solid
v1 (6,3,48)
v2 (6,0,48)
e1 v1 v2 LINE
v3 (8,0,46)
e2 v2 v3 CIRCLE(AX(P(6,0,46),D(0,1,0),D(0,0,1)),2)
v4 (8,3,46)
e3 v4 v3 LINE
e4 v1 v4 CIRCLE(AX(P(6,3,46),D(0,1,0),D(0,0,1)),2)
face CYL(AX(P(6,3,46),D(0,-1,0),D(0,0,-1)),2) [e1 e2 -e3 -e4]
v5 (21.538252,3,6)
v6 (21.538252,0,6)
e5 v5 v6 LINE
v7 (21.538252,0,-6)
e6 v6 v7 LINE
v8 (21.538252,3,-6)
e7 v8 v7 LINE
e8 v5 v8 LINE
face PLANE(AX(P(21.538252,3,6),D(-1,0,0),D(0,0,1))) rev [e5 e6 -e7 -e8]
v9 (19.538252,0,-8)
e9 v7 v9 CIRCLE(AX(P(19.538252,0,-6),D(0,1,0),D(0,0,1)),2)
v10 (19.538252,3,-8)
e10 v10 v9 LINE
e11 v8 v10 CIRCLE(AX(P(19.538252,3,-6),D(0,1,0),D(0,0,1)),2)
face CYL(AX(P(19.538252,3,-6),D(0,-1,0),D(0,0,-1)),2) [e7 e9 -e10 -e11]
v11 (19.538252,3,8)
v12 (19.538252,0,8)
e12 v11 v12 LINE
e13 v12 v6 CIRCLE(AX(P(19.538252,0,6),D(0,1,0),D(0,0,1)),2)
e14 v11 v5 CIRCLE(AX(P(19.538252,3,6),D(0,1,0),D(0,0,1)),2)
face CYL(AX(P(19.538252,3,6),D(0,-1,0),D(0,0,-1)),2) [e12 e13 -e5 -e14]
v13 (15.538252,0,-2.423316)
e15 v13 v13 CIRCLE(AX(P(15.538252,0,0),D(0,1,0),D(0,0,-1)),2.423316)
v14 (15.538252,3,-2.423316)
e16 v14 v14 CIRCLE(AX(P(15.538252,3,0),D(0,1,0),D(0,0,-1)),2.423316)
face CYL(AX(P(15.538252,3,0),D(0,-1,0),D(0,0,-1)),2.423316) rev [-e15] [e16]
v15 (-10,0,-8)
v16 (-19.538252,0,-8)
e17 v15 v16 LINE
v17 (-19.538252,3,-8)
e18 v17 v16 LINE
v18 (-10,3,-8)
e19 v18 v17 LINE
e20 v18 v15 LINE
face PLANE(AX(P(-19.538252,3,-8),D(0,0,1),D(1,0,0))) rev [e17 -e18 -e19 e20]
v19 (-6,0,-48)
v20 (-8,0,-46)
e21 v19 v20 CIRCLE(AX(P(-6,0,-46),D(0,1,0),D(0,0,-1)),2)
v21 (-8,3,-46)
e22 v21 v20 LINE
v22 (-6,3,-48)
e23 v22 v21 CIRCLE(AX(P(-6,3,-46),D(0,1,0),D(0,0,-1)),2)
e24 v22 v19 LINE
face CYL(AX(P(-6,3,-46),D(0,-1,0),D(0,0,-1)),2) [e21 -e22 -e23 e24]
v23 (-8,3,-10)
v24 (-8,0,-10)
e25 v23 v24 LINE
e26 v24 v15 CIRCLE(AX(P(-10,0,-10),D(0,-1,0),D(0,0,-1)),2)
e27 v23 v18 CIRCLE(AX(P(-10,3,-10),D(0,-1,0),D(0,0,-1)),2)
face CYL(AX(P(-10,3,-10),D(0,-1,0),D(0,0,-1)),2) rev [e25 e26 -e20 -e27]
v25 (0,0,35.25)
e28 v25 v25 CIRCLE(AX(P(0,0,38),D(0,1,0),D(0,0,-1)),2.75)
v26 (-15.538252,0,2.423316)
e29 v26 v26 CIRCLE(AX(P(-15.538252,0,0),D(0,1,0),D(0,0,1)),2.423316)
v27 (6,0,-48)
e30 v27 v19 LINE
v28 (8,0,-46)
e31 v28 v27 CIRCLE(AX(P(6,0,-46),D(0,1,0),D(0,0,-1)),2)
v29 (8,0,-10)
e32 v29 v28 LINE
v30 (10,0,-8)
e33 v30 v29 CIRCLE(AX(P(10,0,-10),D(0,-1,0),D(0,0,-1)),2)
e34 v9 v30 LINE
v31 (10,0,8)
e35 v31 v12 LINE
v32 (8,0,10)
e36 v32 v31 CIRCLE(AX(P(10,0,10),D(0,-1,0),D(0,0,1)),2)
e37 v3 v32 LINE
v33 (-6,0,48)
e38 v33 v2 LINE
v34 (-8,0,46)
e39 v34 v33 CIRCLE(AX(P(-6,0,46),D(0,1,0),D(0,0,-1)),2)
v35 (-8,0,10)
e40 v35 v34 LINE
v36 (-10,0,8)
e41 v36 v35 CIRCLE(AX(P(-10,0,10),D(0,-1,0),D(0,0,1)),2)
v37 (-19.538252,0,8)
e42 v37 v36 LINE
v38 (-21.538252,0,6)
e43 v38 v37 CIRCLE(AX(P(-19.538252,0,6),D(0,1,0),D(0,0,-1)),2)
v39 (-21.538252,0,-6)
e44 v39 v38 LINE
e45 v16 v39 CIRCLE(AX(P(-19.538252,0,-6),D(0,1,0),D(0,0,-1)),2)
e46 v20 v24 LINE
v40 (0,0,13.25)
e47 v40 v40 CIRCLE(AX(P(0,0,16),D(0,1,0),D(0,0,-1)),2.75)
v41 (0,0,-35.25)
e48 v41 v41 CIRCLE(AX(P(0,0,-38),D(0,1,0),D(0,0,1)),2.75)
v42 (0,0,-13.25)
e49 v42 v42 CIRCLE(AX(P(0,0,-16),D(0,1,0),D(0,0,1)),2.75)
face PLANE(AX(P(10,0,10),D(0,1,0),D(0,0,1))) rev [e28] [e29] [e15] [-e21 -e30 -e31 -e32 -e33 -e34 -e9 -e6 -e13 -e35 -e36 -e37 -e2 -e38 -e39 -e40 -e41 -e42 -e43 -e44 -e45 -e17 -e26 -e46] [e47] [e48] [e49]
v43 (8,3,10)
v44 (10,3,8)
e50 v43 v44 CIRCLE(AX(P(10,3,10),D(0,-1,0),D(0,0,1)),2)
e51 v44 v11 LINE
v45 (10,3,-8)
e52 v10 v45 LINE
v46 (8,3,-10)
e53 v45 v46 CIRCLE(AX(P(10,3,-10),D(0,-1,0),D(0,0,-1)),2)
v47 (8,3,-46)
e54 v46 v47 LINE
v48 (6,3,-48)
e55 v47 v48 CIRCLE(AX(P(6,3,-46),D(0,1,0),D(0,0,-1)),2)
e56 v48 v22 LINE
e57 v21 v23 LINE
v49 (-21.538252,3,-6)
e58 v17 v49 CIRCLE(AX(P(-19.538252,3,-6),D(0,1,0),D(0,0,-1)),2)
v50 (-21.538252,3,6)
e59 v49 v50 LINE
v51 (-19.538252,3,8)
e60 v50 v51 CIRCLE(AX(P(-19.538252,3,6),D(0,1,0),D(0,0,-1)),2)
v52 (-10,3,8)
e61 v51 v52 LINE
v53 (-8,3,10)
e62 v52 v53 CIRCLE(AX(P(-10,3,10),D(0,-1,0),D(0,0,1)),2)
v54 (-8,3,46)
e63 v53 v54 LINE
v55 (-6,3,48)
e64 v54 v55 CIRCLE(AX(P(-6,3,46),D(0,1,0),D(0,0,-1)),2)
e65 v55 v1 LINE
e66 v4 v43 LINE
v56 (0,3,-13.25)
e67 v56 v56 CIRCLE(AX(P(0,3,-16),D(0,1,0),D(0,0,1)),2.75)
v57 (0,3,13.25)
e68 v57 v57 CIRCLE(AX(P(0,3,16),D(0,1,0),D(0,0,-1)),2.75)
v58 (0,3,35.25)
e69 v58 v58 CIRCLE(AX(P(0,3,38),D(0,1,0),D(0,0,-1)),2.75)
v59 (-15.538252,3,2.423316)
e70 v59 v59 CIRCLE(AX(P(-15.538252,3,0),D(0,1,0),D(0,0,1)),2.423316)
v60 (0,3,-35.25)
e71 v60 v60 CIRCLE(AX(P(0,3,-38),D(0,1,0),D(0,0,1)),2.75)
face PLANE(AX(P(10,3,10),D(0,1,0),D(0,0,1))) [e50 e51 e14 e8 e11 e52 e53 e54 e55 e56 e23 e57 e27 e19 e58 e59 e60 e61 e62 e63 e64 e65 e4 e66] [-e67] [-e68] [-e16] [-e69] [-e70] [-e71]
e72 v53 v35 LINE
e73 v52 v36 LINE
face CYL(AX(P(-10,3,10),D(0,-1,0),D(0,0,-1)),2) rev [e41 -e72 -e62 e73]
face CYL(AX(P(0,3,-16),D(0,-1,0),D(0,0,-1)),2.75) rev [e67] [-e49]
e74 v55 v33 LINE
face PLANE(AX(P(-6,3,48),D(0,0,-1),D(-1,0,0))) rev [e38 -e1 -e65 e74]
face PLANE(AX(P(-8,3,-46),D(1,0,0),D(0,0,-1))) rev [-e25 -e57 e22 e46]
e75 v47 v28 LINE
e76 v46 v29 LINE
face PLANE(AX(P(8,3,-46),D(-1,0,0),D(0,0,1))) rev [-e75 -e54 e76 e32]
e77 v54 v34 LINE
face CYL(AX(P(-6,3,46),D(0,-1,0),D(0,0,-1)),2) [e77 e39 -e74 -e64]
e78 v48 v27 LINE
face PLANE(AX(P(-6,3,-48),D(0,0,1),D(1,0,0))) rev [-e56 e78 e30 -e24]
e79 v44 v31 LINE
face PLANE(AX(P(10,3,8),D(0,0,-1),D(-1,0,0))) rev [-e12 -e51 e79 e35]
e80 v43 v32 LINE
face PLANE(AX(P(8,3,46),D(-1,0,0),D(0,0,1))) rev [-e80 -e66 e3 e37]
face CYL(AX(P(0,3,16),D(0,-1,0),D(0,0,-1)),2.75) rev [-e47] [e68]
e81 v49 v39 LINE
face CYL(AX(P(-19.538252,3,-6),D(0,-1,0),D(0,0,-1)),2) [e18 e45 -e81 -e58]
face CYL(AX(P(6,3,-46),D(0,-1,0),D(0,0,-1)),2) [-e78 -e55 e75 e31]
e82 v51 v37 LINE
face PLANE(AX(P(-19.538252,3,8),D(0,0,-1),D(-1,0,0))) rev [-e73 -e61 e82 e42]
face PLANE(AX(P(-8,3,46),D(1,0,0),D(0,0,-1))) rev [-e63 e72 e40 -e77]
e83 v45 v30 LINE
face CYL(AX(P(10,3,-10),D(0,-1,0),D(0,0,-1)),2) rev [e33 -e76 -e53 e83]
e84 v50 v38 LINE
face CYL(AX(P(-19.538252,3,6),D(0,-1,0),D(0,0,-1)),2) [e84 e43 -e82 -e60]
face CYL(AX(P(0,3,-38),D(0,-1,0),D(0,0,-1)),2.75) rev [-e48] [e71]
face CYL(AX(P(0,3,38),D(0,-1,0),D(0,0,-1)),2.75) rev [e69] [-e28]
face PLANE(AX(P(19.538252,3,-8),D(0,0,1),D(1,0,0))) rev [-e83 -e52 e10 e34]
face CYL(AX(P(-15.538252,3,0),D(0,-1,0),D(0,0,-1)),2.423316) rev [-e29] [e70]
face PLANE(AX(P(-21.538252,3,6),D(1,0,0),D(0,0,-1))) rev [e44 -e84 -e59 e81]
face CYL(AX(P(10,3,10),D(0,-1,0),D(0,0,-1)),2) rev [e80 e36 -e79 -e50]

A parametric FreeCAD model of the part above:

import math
import FreeCAD as App
import Part
import Sketcher
from FreeCAD import Vector

doc = App.newDocument("Part")
body = doc.addObject("PartDesign::Body", "Body")

sketch1 = body.newObject("Sketcher::SketchObject", "Sketch")
sketch1.AttachmentSupport = (doc.getObject("XZ_Plane"), [""])
sketch1.MapMode = "FlatFace"
sketch1.addGeometry(Part.LineSegment(Vector(6, -48, 0), Vector(-6, -48, 0)), False)
sketch1.addGeometry(Part.ArcOfCircle(Part.Circle(Vector(-6, -46, 0), Vector(0, 0, 1), 2), math.radians(-180), math.radians(-90)), False)
sketch1.addGeometry(Part.LineSegment(Vector(-8, -46, 0), Vector(-8, -10, 0)), False)
sketch1.addGeometry(Part.ArcOfCircle(Part.Circle(Vector(-10, -10, 0), Vector(0, 0, 1), 2), math.radians(0), math.radians(90)), False)
sketch1.addGeometry(Part.LineSegment(Vector(-10, -8, 0), Vector(-19.538252, -8, 0)), False)
sketch1.addGeometry(Part.ArcOfCircle(Part.Circle(Vector(-19.538252, -6, 0), Vector(0, 0, 1), 2), math.radians(-180), math.radians(-90)), False)
sketch1.addGeometry(Part.LineSegment(Vector(-21.538252, -6, 0), Vector(-21.538252, 6, 0)), False)
sketch1.addGeometry(Part.ArcOfCircle(Part.Circle(Vector(-19.538252, 6, 0), Vector(0, 0, 1), 2), math.radians(90), math.radians(180)), False)
sketch1.addGeometry(Part.LineSegment(Vector(-19.538252, 8, 0), Vector(-10, 8, 0)), False)
sketch1.addGeometry(Part.ArcOfCircle(Part.Circle(Vector(-10, 10, 0), Vector(0, 0, 1), 2), math.radians(-90), math.radians(0)), False)
sketch1.addGeometry(Part.LineSegment(Vector(-8, 10, 0), Vector(-8, 46, 0)), False)
sketch1.addGeometry(Part.ArcOfCircle(Part.Circle(Vector(-6, 46, 0), Vector(0, 0, 1), 2), math.radians(90), math.radians(180)), False)
sketch1.addGeometry(Part.LineSegment(Vector(-6, 48, 0), Vector(6, 48, 0)), False)
sketch1.addGeometry(Part.ArcOfCircle(Part.Circle(Vector(6, 46, 0), Vector(0, 0, 1), 2), math.radians(0), math.radians(90)), False)
sketch1.addGeometry(Part.LineSegment(Vector(8, 46, 0), Vector(8, 10, 0)), False)
sketch1.addGeometry(Part.ArcOfCircle(Part.Circle(Vector(10, 10, 0), Vector(0, 0, 1), 2), math.radians(-180), math.radians(-90)), False)
sketch1.addGeometry(Part.LineSegment(Vector(10, 8, 0), Vector(19.538252, 8, 0)), False)
sketch1.addGeometry(Part.ArcOfCircle(Part.Circle(Vector(19.538252, 6, 0), Vector(0, 0, 1), 2), math.radians(0), math.radians(90)), False)
sketch1.addGeometry(Part.LineSegment(Vector(21.538252, 6, 0), Vector(21.538252, -6, 0)), False)
sketch1.addGeometry(Part.ArcOfCircle(Part.Circle(Vector(19.538252, -6, 0), Vector(0, 0, 1), 2), math.radians(-90), math.radians(0)), False)
sketch1.addGeometry(Part.LineSegment(Vector(19.538252, -8, 0), Vector(10, -8, 0)), False)
sketch1.addGeometry(Part.ArcOfCircle(Part.Circle(Vector(10, -10, 0), Vector(0, 0, 1), 2), math.radians(90), math.radians(180)), False)
sketch1.addGeometry(Part.LineSegment(Vector(8, -10, 0), Vector(8, -46, 0)), False)
sketch1.addGeometry(Part.ArcOfCircle(Part.Circle(Vector(6, -46, 0), Vector(0, 0, 1), 2), math.radians(-90), math.radians(0)), False)
sketch1.addGeometry(Part.Circle(Vector(0, 38, 0), Vector(0, 0, 1), 2.75), False)
sketch1.addGeometry(Part.Circle(Vector(0, 16, 0), Vector(0, 0, 1), 2.75), False)
sketch1.addGeometry(Part.Circle(Vector(15.538252, 0, 0), Vector(0, 0, 1), 2.423316), False)
sketch1.addGeometry(Part.Circle(Vector(0, -16, 0), Vector(0, 0, 1), 2.75), False)
sketch1.addGeometry(Part.Circle(Vector(-15.538252, 0, 0), Vector(0, 0, 1), 2.423316), False)
sketch1.addGeometry(Part.Circle(Vector(0, -38, 0), Vector(0, 0, 1), 2.75), False)
sketch1.addConstraint(Sketcher.Constraint("Tangent", 0, 2, 1, 2))
sketch1.addConstraint(Sketcher.Constraint("Tangent", 1, 1, 2, 1))
sketch1.addConstraint(Sketcher.Constraint("Tangent", 2, 2, 3, 1))
sketch1.addConstraint(Sketcher.Constraint("Tangent", 3, 2, 4, 1))
sketch1.addConstraint(Sketcher.Constraint("Tangent", 4, 2, 5, 2))
sketch1.addConstraint(Sketcher.Constraint("Tangent", 5, 1, 6, 1))
sketch1.addConstraint(Sketcher.Constraint("Tangent", 6, 2, 7, 2))
sketch1.addConstraint(Sketcher.Constraint("Tangent", 7, 1, 8, 1))
sketch1.addConstraint(Sketcher.Constraint("Tangent", 8, 2, 9, 1))
sketch1.addConstraint(Sketcher.Constraint("Tangent", 9, 2, 10, 1))
sketch1.addConstraint(Sketcher.Constraint("Tangent", 10, 2, 11, 2))
sketch1.addConstraint(Sketcher.Constraint("Tangent", 11, 1, 12, 1))
sketch1.addConstraint(Sketcher.Constraint("Tangent", 12, 2, 13, 2))
sketch1.addConstraint(Sketcher.Constraint("Tangent", 13, 1, 14, 1))
sketch1.addConstraint(Sketcher.Constraint("Tangent", 14, 2, 15, 1))
sketch1.addConstraint(Sketcher.Constraint("Tangent", 15, 2, 16, 1))
sketch1.addConstraint(Sketcher.Constraint("Tangent", 16, 2, 17, 2))
sketch1.addConstraint(Sketcher.Constraint("Tangent", 17, 1, 18, 1))
sketch1.addConstraint(Sketcher.Constraint("Tangent", 18, 2, 19, 2))
sketch1.addConstraint(Sketcher.Constraint("Tangent", 19, 1, 20, 1))
sketch1.addConstraint(Sketcher.Constraint("Tangent", 20, 2, 21, 1))
sketch1.addConstraint(Sketcher.Constraint("Tangent", 21, 2, 22, 1))
sketch1.addConstraint(Sketcher.Constraint("Tangent", 22, 2, 23, 2))
sketch1.addConstraint(Sketcher.Constraint("Tangent", 23, 1, 0, 1))
sketch1.addConstraint(Sketcher.Constraint("Horizontal", 0))
sketch1.addConstraint(Sketcher.Constraint("Vertical", 2))
sketch1.addConstraint(Sketcher.Constraint("Horizontal", 4))
sketch1.addConstraint(Sketcher.Constraint("Vertical", 6))
sketch1.addConstraint(Sketcher.Constraint("Horizontal", 8))
sketch1.addConstraint(Sketcher.Constraint("Vertical", 10))
sketch1.addConstraint(Sketcher.Constraint("Horizontal", 12))
sketch1.addConstraint(Sketcher.Constraint("Vertical", 14))
sketch1.addConstraint(Sketcher.Constraint("Horizontal", 16))
sketch1.addConstraint(Sketcher.Constraint("Vertical", 18))
sketch1.addConstraint(Sketcher.Constraint("Horizontal", 20))
sketch1.addConstraint(Sketcher.Constraint("Vertical", 22))
sketch1.addConstraint(Sketcher.Constraint("Equal", 1, 3))
sketch1.addConstraint(Sketcher.Constraint("Equal", 3, 5))
sketch1.addConstraint(Sketcher.Constraint("Equal", 5, 7))
sketch1.addConstraint(Sketcher.Constraint("Equal", 7, 9))
sketch1.addConstraint(Sketcher.Constraint("Equal", 9, 11))
sketch1.addConstraint(Sketcher.Constraint("Equal", 11, 13))
sketch1.addConstraint(Sketcher.Constraint("Equal", 13, 15))
sketch1.addConstraint(Sketcher.Constraint("Equal", 15, 17))
sketch1.addConstraint(Sketcher.Constraint("Equal", 17, 19))
sketch1.addConstraint(Sketcher.Constraint("Equal", 19, 21))
sketch1.addConstraint(Sketcher.Constraint("Equal", 21, 23))
sketch1.addConstraint(Sketcher.Constraint("Equal", 24, 25))
sketch1.addConstraint(Sketcher.Constraint("Equal", 25, 27))
sketch1.addConstraint(Sketcher.Constraint("Equal", 26, 28))
sketch1.addConstraint(Sketcher.Constraint("Equal", 27, 29))
sketch1.addConstraint(Sketcher.Constraint("Symmetric", 1, 3, 13, 3, -1, 1))
sketch1.addConstraint(Sketcher.Constraint("Symmetric", 5, 3, 17, 3, -1, 1))
sketch1.addConstraint(Sketcher.Constraint("Symmetric", 9, 3, 21, 3, -1, 1))
sketch1.addConstraint(Sketcher.Constraint("Symmetric", 25, 3, 27, 3, -1, 1))
sketch1.addConstraint(Sketcher.Constraint("Symmetric", 26, 3, 28, 3, -1, 1))
sketch1.addConstraint(Sketcher.Constraint("Symmetric", 24, 3, 29, 3, -1, 1))
sketch1.addConstraint(Sketcher.Constraint("Symmetric", 9, 3, 15, 3, -2))
sketch1.addConstraint(Sketcher.Constraint("PointOnObject", 24, 3, -2))
sketch1.addConstraint(Sketcher.Constraint("PointOnObject", 25, 3, -2))
sketch1.addConstraint(Sketcher.Constraint("PointOnObject", 26, 3, -1))
sketch1.addConstraint(Sketcher.Constraint("Equal", 12, 6))
sketch1.addConstraint(Sketcher.Constraint("Radius", 1, 2.0))
sketch1.addConstraint(Sketcher.Constraint("Diameter", 24, 5.5))
sketch1.addConstraint(Sketcher.Constraint("DistanceX", 0, 2, 0, 1, 12.0))
sketch1.addConstraint(Sketcher.Constraint("DistanceY", 2, 1, 2, 2, 36.0))
sketch1.addConstraint(Sketcher.Constraint("DistanceY", -1, 1, 24, 3, 38.0))
sketch1.addConstraint(Sketcher.Constraint("DistanceY", -1, 1, 25, 3, 16.0))
sketch1.addConstraint(Sketcher.Constraint("DistanceX", 26, 3, 17, 3, 4.0))
sketch1.addConstraint(Sketcher.Constraint("Diameter", 26, 4.846632))
sketch1.addConstraint(Sketcher.Constraint("DistanceX", 4, 2, 4, 1, 9.538252))
pad1 = body.newObject("PartDesign::Pad", "Pad")
pad1.Profile = sketch1
pad1.Length = 3
pad1.Reversed = True

doc.recompute()
